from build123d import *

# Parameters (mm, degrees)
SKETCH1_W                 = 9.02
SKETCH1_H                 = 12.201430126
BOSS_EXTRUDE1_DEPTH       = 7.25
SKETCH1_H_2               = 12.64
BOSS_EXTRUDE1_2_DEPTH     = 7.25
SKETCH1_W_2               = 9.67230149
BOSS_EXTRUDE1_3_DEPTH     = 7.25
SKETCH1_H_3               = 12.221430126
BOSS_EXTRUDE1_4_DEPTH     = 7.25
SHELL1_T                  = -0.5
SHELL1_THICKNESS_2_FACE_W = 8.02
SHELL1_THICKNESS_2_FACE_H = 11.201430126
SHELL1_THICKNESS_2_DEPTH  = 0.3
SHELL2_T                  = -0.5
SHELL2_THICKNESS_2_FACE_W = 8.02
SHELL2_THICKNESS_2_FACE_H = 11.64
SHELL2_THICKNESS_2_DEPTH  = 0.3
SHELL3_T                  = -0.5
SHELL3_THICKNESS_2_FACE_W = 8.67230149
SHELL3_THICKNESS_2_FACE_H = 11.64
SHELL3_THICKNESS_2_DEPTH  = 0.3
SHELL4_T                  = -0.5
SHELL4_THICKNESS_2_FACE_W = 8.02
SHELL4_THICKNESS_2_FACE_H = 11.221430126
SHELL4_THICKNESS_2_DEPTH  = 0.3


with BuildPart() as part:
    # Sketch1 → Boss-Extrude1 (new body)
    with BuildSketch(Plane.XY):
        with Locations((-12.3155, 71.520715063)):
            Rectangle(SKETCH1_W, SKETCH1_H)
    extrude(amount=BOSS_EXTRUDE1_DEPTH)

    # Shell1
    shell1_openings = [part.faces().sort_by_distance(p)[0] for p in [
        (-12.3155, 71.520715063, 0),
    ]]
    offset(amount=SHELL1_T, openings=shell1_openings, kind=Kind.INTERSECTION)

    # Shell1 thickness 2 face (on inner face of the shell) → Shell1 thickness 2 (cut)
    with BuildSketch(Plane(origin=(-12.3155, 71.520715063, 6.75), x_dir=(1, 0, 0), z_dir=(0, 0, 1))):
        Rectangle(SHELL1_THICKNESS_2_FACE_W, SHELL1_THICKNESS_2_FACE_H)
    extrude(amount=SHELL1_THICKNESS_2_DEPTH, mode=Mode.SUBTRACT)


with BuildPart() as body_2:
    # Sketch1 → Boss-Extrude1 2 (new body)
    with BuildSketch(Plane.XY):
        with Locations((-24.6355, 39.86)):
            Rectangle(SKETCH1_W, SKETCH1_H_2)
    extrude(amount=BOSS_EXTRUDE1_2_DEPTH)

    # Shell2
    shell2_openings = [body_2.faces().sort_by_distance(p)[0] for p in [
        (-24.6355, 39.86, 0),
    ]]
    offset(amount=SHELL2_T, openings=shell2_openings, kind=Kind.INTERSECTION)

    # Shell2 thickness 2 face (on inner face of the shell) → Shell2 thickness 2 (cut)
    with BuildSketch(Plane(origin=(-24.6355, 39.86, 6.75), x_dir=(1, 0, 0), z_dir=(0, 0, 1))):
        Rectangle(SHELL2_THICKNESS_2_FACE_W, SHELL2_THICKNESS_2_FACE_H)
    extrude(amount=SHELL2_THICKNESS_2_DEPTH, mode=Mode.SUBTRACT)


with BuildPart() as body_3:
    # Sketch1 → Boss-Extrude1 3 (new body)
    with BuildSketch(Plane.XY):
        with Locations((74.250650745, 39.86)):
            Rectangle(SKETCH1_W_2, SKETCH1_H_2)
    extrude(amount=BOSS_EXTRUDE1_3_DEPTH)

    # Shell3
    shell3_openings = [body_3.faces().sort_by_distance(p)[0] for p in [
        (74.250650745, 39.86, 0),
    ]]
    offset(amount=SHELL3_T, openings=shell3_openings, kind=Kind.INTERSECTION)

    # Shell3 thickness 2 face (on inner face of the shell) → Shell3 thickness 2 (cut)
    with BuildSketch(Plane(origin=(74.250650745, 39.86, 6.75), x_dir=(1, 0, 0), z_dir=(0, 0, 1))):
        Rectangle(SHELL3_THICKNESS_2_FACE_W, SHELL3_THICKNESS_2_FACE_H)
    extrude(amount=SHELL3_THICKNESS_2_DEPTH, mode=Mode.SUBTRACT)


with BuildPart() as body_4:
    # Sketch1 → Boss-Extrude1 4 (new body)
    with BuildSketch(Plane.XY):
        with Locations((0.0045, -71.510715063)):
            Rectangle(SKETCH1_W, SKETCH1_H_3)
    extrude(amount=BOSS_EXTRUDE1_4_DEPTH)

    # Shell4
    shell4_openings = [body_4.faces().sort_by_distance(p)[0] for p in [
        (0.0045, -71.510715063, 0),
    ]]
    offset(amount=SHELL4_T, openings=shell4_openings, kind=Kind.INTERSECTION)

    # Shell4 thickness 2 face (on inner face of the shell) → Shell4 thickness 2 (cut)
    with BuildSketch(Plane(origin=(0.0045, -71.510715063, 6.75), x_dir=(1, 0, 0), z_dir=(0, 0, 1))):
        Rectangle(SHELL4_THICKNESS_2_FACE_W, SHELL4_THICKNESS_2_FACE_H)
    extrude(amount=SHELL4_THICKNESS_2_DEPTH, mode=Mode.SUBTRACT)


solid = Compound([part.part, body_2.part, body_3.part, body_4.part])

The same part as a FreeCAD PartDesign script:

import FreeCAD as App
import Part
import Sketcher

V = App.Vector


def faces_at(feature, points):
    """Names of the faces that lie closest to the given points."""
    faces = feature.Shape.Faces
    near = lambda p: min(range(len(faces)), key=lambda i: faces[i].distToShape(Part.Vertex(*p))[0])
    return sorted({f"Face{near(p) + 1}" for p in points})


def add_polygon(sketch, points):
    """Adds a closed chain of lines whose ends are joined by coincident constraints."""
    first, n = sketch.GeometryCount, len(points)
    for a, b in zip(points, points[1:] + points[:1]):
        sketch.addGeometry(Part.LineSegment(App.Vector(*a, 0), App.Vector(*b, 0)), False)
    for i in range(n):
        sketch.addConstraint(Sketcher.Constraint("Coincident", first + i, 2, first + (i + 1) % n, 1))

doc = App.newDocument("Part")
body = doc.addObject("PartDesign::Body", "Body")

sketch1 = doc.addObject("Sketcher::SketchObject", "Sketch")
body.addObject(sketch1)
sketch1.AttachmentSupport = (doc.XY_Plane, [""])
sketch1.MapMode = "FlatFace"
add_polygon(sketch1, [(-17, 78), (-17, 65), (-8, 65), (-8, 78)])
sketch1.addConstraint(Sketcher.Constraint("Vertical", 0))
sketch1.addConstraint(Sketcher.Constraint("Horizontal", 1))
sketch1.addConstraint(Sketcher.Constraint("Vertical", 2))
sketch1.addConstraint(Sketcher.Constraint("Horizontal", 3))
sketch1.addConstraint(Sketcher.Constraint("DistanceX", 1, 1, 1, 2, 9.02))
sketch1.addConstraint(Sketcher.Constraint("DistanceY", -1, 1, 0, 2, 65.42))
sketch1.addConstraint(Sketcher.Constraint("DistanceY", 0, 2, 0, 1, 12.20143))
sketch1.addConstraint(Sketcher.Constraint("DistanceX", 0, 2, -1, 1, 16.8255))
pad1 = doc.addObject("PartDesign::Pad", "Pad")
body.addObject(pad1)
pad1.Profile = sketch1
pad1.Length = 7.25
doc.recompute()

thickness = doc.addObject("PartDesign::Thickness", "Thickness")
body.addObject(thickness)
thickness.Base = (pad1, faces_at(pad1, [(-12.316, 71.521, 0)]))
thickness.Value = 0.5
thickness.Reversed = True
thickness.Join = "Intersection"

sketch2 = doc.addObject("Sketcher::SketchObject", "Sketch001")
body.addObject(sketch2)
sketch2.AttachmentSupport = (doc.XY_Plane, [""])
sketch2.MapMode = "FlatFace"
sketch2.AttachmentOffset = App.Placement(V(0, 0, 6.75), App.Rotation())
add_polygon(sketch2, [(-16, 77), (-16, 66), (-8, 66), (-8, 77)])
sketch2.addConstraint(Sketcher.Constraint("Vertical", 0))
sketch2.addConstraint(Sketcher.Constraint("Horizontal", 1))
sketch2.addConstraint(Sketcher.Constraint("Vertical", 2))
sketch2.addConstraint(Sketcher.Constraint("Horizontal", 3))
sketch2.addConstraint(Sketcher.Constraint("DistanceX", 1, 1, 1, 2, 8.02))
sketch2.addConstraint(Sketcher.Constraint("DistanceY", -1, 1, 0, 2, 65.92))
sketch2.addConstraint(Sketcher.Constraint("DistanceY", 0, 2, 0, 1, 11.20143))
sketch2.addConstraint(Sketcher.Constraint("DistanceX", 0, 2, -1, 1, 16.3255))
pocket1 = doc.addObject("PartDesign::Pocket", "Pocket")
body.addObject(pocket1)
pocket1.Profile = sketch2
pocket1.Length = 0.3
pocket1.Reversed = True
body2 = doc.addObject("PartDesign::Body", "Body001")

sketch3 = doc.addObject("Sketcher::SketchObject", "Sketch002")
body2.addObject(sketch3)
sketch3.AttachmentSupport = (doc.getObject("XY_Plane001"), [""])
sketch3.MapMode = "FlatFace"
add_polygon(sketch3, [(-29, 46), (-29, 34), (-20, 34), (-20, 46)])
sketch3.addConstraint(Sketcher.Constraint("Vertical", 0))
sketch3.addConstraint(Sketcher.Constraint("Horizontal", 1))
sketch3.addConstraint(Sketcher.Constraint("Vertical", 2))
sketch3.addConstraint(Sketcher.Constraint("Horizontal", 3))
sketch3.addConstraint(Sketcher.Constraint("DistanceX", 1, 1, 1, 2, 9.02))
sketch3.addConstraint(Sketcher.Constraint("DistanceY", 0, 2, 0, 1, 12.64))
sketch3.addConstraint(Sketcher.Constraint("DistanceY", -1, 1, 0, 2, 33.54))
sketch3.addConstraint(Sketcher.Constraint("DistanceX", 0, 2, -1, 1, 29.1455))
pad2 = doc.addObject("PartDesign::Pad", "Pad001")
body2.addObject(pad2)
pad2.Profile = sketch3
pad2.Length = 7.25
doc.recompute()

thickness2 = doc.addObject("PartDesign::Thickness", "Thickness001")
body2.addObject(thickness2)
thickness2.Base = (pad2, faces_at(pad2, [(-24.636, 39.86, 0)]))
thickness2.Value = 0.5
thickness2.Reversed = True
thickness2.Join = "Intersection"

sketch4 = doc.addObject("Sketcher::SketchObject", "Sketch003")
body2.addObject(sketch4)
sketch4.AttachmentSupport = (doc.getObject("XY_Plane001"), [""])
sketch4.MapMode = "FlatFace"
sketch4.AttachmentOffset = App.Placement(V(0, 0, 6.75), App.Rotation())
add_polygon(sketch4, [(-29, 46), (-29, 34), (-21, 34), (-21, 46)])
sketch4.addConstraint(Sketcher.Constraint("Vertical", 0))
sketch4.addConstraint(Sketcher.Constraint("Horizontal", 1))
sketch4.addConstraint(Sketcher.Constraint("Vertical", 2))
sketch4.addConstraint(Sketcher.Constraint("Horizontal", 3))
sketch4.addConstraint(Sketcher.Constraint("DistanceX", 1, 1, 1, 2, 8.02))
sketch4.addConstraint(Sketcher.Constraint("DistanceY", 0, 2, 0, 1, 11.64))
sketch4.addConstraint(Sketcher.Constraint("DistanceY", -1, 1, 0, 2, 34.04))
sketch4.addConstraint(Sketcher.Constraint("DistanceX", 0, 2, -1, 1, 28.6455))
pocket2 = doc.addObject("PartDesign::Pocket", "Pocket001")
body2.addObject(pocket2)
pocket2.Profile = sketch4
pocket2.Length = 0.3
pocket2.Reversed = True
body3 = doc.addObject("PartDesign::Body", "Body002")

sketch5 = doc.addObject("Sketcher::SketchObject", "Sketch004")
body3.addObject(sketch5)
sketch5.AttachmentSupport = (doc.getObject("XY_Plane002"), [""])
sketch5.MapMode = "FlatFace"
add_polygon(sketch5, [(69, 46), (69, 34), (79, 34), (79, 46)])
sketch5.addConstraint(Sketcher.Constraint("Vertical", 0))
sketch5.addConstraint(Sketcher.Constraint("Horizontal", 1))
sketch5.addConstraint(Sketcher.Constraint("Vertical", 2))
sketch5.addConstraint(Sketcher.Constraint("Horizontal", 3))
sketch5.addConstraint(Sketcher.Constraint("DistanceY", 0, 2, 0, 1, 12.64))
sketch5.addConstraint(Sketcher.Constraint("DistanceY", -1, 1, 0, 2, 33.54))
sketch5.addConstraint(Sketcher.Constraint("DistanceX", 1, 1, 1, 2, 9.672301))
sketch5.addConstraint(Sketcher.Constraint("DistanceX", -1, 1, 0, 2, 69.4145))
pad3 = doc.addObject("PartDesign::Pad", "Pad002")
body3.addObject(pad3)
pad3.Profile = sketch5
pad3.Length = 7.25
doc.recompute()

thickness3 = doc.addObject("PartDesign::Thickness", "Thickness002")
body3.addObject(thickness3)
thickness3.Base = (pad3, faces_at(pad3, [(74.251, 39.86, 0)]))
thickness3.Value = 0.5
thickness3.Reversed = True
thickness3.Join = "Intersection"

sketch6 = doc.addObject("Sketcher::SketchObject", "Sketch005")
body3.addObject(sketch6)
sketch6.AttachmentSupport = (doc.getObject("XY_Plane002"), [""])
sketch6.MapMode = "FlatFace"
sketch6.AttachmentOffset = App.Placement(V(0, 0, 6.75), App.Rotation())
add_polygon(sketch6, [(70, 46), (70, 34), (79, 34), (79, 46)])
sketch6.addConstraint(Sketcher.Constraint("Vertical", 0))
sketch6.addConstraint(Sketcher.Constraint("Horizontal", 1))
sketch6.addConstraint(Sketcher.Constraint("Vertical", 2))
sketch6.addConstraint(Sketcher.Constraint("Horizontal", 3))
sketch6.addConstraint(Sketcher.Constraint("DistanceY", 0, 2, 0, 1, 11.64))
sketch6.addConstraint(Sketcher.Constraint("DistanceY", -1, 1, 0, 2, 34.04))
sketch6.addConstraint(Sketcher.Constraint("DistanceX", 1, 1, 1, 2, 8.672301))
sketch6.addConstraint(Sketcher.Constraint("DistanceX", -1, 1, 0, 2, 69.9145))
pocket3 = doc.addObject("PartDesign::Pocket", "Pocket002")
body3.addObject(pocket3)
pocket3.Profile = sketch6
pocket3.Length = 0.3
pocket3.Reversed = True
body4 = doc.addObject("PartDesign::Body", "Body003")

sketch7 = doc.addObject("Sketcher::SketchObject", "Sketch006")
body4.addObject(sketch7)
sketch7.AttachmentSupport = (doc.getObject("XY_Plane003"), [""])
sketch7.MapMode = "FlatFace"
add_polygon(sketch7, [(-5, -65), (-5, -78), (5, -78), (5, -65)])
sketch7.addConstraint(Sketcher.Constraint("Vertical", 0))
sketch7.addConstraint(Sketcher.Constraint("Horizontal", 1))
sketch7.addConstraint(Sketcher.Constraint("Vertical", 2))
sketch7.addConstraint(Sketcher.Constraint("Horizontal", 3))
sketch7.addConstraint(Sketcher.Constraint("DistanceX", 1, 1, 1, 2, 9.02))
sketch7.addConstraint(Sketcher.Constraint("DistanceY", 2, 2, -1, 1, 65.4))
sketch7.addConstraint(Sketcher.Constraint("DistanceY", 0, 2, 0, 1, 12.22143))
sketch7.addConstraint(Sketcher.Constraint("DistanceX", 0, 2, -1, 1, 4.5055))
pad4 = doc.addObject("PartDesign::Pad", "Pad003")
body4.addObject(pad4)
pad4.Profile = sketch7
pad4.Length = 7.25
doc.recompute()

thickness4 = doc.addObject("PartDesign::Thickness", "Thickness003")
body4.addObject(thickness4)
thickness4.Base = (pad4, faces_at(pad4, [(0.004, -71.511, 0)]))
thickness4.Value = 0.5
thickness4.Reversed = True
thickness4.Join = "Intersection"

sketch8 = doc.addObject("Sketcher::SketchObject", "Sketch007")
body4.addObject(sketch8)
sketch8.AttachmentSupport = (doc.getObject("XY_Plane003"), [""])
sketch8.MapMode = "FlatFace"
sketch8.AttachmentOffset = App.Placement(V(0, 0, 6.75), App.Rotation())
add_polygon(sketch8, [(-4, -66), (-4, -77), (4, -77), (4, -66)])
sketch8.addConstraint(Sketcher.Constraint("Vertical", 0))
sketch8.addConstraint(Sketcher.Constraint("Horizontal", 1))
sketch8.addConstraint(Sketcher.Constraint("Vertical", 2))
sketch8.addConstraint(Sketcher.Constraint("Horizontal", 3))
sketch8.addConstraint(Sketcher.Constraint("DistanceX", 1, 1, 1, 2, 8.02))
sketch8.addConstraint(Sketcher.Constraint("DistanceY", 2, 2, -1, 1, 65.9))
sketch8.addConstraint(Sketcher.Constraint("DistanceY", 0, 2, 0, 1, 11.22143))
sketch8.addConstraint(Sketcher.Constraint("DistanceX", 0, 2, -1, 1, 4.0055))
pocket4 = doc.addObject("PartDesign::Pocket", "Pocket003")
body4.addObject(pocket4)
pocket4.Profile = sketch8
pocket4.Length = 0.3
pocket4.Reversed = True

doc.recompute()
